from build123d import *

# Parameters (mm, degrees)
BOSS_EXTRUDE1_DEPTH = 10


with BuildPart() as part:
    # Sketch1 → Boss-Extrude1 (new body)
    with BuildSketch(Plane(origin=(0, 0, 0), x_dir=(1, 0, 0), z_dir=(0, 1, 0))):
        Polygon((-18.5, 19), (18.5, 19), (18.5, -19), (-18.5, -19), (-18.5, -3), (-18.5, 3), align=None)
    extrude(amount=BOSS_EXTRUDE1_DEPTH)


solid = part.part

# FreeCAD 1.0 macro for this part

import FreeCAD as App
import Part
import Sketcher
from FreeCAD import Vector


def add_polygon(sketch, points):
    """Adds a closed chain of lines whose ends are joined by coincident constraints."""
    first, n = sketch.GeometryCount, len(points)
    for a, b in zip(points, points[1:] + points[:1]):
        sketch.addGeometry(Part.LineSegment(App.Vector(*a, 0), App.Vector(*b, 0)), False)
    for i in range(n):
        sketch.addConstraint(Sketcher.Constraint("Coincident", first + i, 2, first + (i + 1) % n, 1))

doc = App.newDocument("Part")
body = doc.addObject("PartDesign::Body", "Body")

# Sketch on XZ plane
sketch1 = body.newObject("Sketcher::SketchObject", "Sketch")
sketch1.AttachmentSupport = (doc.getObject("XZ_Plane"), [""])
sketch1.MapMode = "FlatFace"
add_polygon(sketch1, [(18, -19), (-18, -19), (-18, 19), (18, 19)])  # lines 0-3
sketch1.addConstraint([
    Sketcher.Constraint("Horizontal", 0),
    Sketcher.Constraint("Vertical", 1),
    Sketcher.Constraint("Horizontal", 2),
    Sketcher.Constraint("Vertical", 3),
    Sketcher.Constraint("Symmetric", 0, 2, 2, 2, -1, 1),
    Sketcher.Constraint("DistanceX", 0, 2, 0, 1, 37.0),
    Sketcher.Constraint("DistanceY", 1, 1, 1, 2, 38.0),
])
pad1 = body.newObject("PartDesign::Pad", "Pad")
pad1.Profile = sketch1
pad1.Length = 10
pad1.Reversed = True

doc.recompute()
